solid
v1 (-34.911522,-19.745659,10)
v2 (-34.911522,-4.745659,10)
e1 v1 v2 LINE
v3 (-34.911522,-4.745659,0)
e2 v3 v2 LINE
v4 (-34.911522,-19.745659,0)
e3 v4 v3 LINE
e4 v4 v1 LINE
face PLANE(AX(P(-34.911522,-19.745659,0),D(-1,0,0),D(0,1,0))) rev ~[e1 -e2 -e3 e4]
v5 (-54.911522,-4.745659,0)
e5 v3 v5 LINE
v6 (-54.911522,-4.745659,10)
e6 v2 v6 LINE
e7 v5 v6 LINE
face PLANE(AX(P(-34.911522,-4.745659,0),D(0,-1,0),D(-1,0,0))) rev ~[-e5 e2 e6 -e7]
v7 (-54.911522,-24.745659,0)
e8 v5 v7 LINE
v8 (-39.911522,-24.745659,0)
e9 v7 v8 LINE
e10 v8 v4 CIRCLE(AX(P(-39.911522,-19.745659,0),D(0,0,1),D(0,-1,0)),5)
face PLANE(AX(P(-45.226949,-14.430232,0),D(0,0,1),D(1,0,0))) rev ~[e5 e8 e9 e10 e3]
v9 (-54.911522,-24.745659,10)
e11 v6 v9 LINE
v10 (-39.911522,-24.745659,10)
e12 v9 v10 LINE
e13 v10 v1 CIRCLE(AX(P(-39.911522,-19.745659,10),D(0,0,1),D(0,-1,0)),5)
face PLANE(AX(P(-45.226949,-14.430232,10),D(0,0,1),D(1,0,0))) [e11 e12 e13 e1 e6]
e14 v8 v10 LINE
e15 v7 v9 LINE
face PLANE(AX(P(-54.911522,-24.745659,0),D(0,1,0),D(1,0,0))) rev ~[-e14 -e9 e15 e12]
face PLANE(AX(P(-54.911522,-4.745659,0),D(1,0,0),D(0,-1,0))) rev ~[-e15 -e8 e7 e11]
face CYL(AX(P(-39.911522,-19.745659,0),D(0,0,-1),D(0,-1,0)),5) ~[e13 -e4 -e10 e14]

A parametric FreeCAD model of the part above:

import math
import FreeCAD as App
import Part
import Sketcher
Q = App.Units.Quantity

doc = App.newDocument("Part")
body = doc.addObject("PartDesign::Body", "Body")

sketch1 = body.newObject("Sketcher::SketchObject", "Sketch")
sketch1.AttachmentSupport = (doc.getObject("XY_Plane"), [""])
sketch1.MapMode = "FlatFace"
sketch1.addGeometry(Part.LineSegment(App.Vector(-35, -5, 0), App.Vector(-55, -5, 0)), False)
sketch1.addGeometry(Part.LineSegment(App.Vector(-55, -5, 0), App.Vector(-55, -25, 0)), False)
sketch1.addGeometry(Part.LineSegment(App.Vector(-55, -25, 0), App.Vector(-40, -25, 0)), False)
sketch1.addGeometry(Part.ArcOfCircle(Part.Circle(App.Vector(-40, -20, 0), App.Vector(0, 0, 1), 5), math.radians(-90), math.radians(0)), False)
sketch1.addGeometry(Part.LineSegment(App.Vector(-35, -20, 0), App.Vector(-35, -5, 0)), False)
sketch1.addConstraint(Sketcher.Constraint("Coincident", 0, 2, 1, 1))
sketch1.addConstraint(Sketcher.Constraint("Coincident", 1, 2, 2, 1))
sketch1.addConstraint(Sketcher.Constraint("Tangent", 2, 2, 3, 1))
sketch1.addConstraint(Sketcher.Constraint("Tangent", 3, 2, 4, 1))
sketch1.addConstraint(Sketcher.Constraint("Coincident", 4, 2, 0, 1))
sketch1.addConstraint(Sketcher.Constraint("Horizontal", 0))
sketch1.addConstraint(Sketcher.Constraint("Vertical", 1))
sketch1.addConstraint(Sketcher.Constraint("Horizontal", 2))
sketch1.addConstraint(Sketcher.Constraint("Vertical", 4))
sketch1.addConstraint(Sketcher.Constraint("Equal", 0, 1))
sketch1.addConstraint(Sketcher.Constraint("Radius", 3, Q("5 mm")))
sketch1.addConstraint(Sketcher.Constraint("DistanceX", 0, 2, 0, 1, Q("20 mm")))
sketch1.addConstraint(Sketcher.Constraint("DistanceY", 3, 3, -1, 1, Q("19.745659 mm")))
sketch1.addConstraint(Sketcher.Constraint("DistanceX", 3, 3, -1, 1, Q("39.911522 mm")))
pad1 = body.newObject("PartDesign::Pad", "Pad")
pad1.Profile = sketch1
pad1.Length = 10

sketch2 = body.newObject("Sketcher::SketchObject", "Sketch001")
sketch2.AttachmentSupport = (doc.getObject("XY_Plane"), [""])
sketch2.MapMode = "FlatFace"
sketch2.addGeometry(Part.LineSegment(App.Vector(-35, -5, 0), App.Vector(-55, -5, 0)), False)
sketch2.addGeometry(Part.LineSegment(App.Vector(-55, -5, 0), App.Vector(-55, -25, 0)), False)
sketch2.addGeometry(Part.LineSegment(App.Vector(-55, -25, 0), App.Vector(-40, -25, 0)), False)
sketch2.addGeometry(Part.ArcOfCircle(Part.Circle(App.Vector(-40, -20, 0), App.Vector(0, 0, 1), 5), math.radians(-90), math.radians(0)), False)
sketch2.addGeometry(Part.LineSegment(App.Vector(-35, -20, 0), App.Vector(-35, -5, 0)), False)
sketch2.addGeometry(Part.Circle(App.Vector(-45, -15, 0), App.Vector(0, 0, 1), 6), False)
sketch2.addConstraint(Sketcher.Constraint("Coincident", 0, 2, 1, 1))
sketch2.addConstraint(Sketcher.Constraint("Coincident", 1, 2, 2, 1))
sketch2.addConstraint(Sketcher.Constraint("Tangent", 2, 2, 3, 1))
sketch2.addConstraint(Sketcher.Constraint("Tangent", 3, 2, 4, 1))
sketch2.addConstraint(Sketcher.Constraint("Coincident", 4, 2, 0, 1))
sketch2.addConstraint(Sketcher.Constraint("Horizontal", 0))
sketch2.addConstraint(Sketcher.Constraint("Vertical", 1))
sketch2.addConstraint(Sketcher.Constraint("Horizontal", 2))
sketch2.addConstraint(Sketcher.Constraint("Vertical", 4))
sketch2.addConstraint(Sketcher.Constraint("Equal", 0, 1))
sketch2.addConstraint(Sketcher.Constraint("Radius", 3, Q("5 mm")))
sketch2.addConstraint(Sketcher.Constraint("DistanceX", 0, 2, 0, 1, Q("20 mm")))
sketch2.addConstraint(Sketcher.Constraint("DistanceX", 5, 3, 3, 3, Q("5 mm")))
sketch2.addConstraint(Sketcher.Constraint("DistanceY", 3, 3, 5, 3, Q("5 mm")))
sketch2.addConstraint(Sketcher.Constraint("Diameter", 5, Q("12.927402 mm")))
sketch2.addConstraint(Sketcher.Constraint("DistanceY", 3, 3, -1, 1, Q("19.745659 mm")))
sketch2.addConstraint(Sketcher.Constraint("DistanceX", 3, 3, -1, 1, Q("39.911522 mm")))
pad2 = body.newObject("PartDesign::Pad", "Pad001")
pad2.Profile = sketch2
pad2.Length = 10

doc.recompute()
